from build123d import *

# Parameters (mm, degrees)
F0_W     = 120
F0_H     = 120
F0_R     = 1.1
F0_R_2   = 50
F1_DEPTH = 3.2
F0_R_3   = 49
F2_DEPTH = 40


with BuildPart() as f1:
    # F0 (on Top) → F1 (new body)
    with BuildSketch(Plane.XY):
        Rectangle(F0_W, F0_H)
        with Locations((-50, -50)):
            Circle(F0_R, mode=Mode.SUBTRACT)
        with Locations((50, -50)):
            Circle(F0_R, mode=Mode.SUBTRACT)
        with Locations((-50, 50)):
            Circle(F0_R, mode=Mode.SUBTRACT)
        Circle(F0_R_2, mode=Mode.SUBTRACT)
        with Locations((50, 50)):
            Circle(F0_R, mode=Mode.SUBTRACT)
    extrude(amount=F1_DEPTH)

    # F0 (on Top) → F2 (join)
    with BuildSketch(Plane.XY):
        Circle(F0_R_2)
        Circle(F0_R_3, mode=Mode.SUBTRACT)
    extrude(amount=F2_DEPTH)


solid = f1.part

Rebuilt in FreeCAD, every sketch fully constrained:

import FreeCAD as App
import Part
import Sketcher

V = App.Vector


def add_polygon(sketch, points):
    """Adds a closed chain of lines whose ends are joined by coincident constraints."""
    first, n = sketch.GeometryCount, len(points)
    for a, b in zip(points, points[1:] + points[:1]):
        sketch.addGeometry(Part.LineSegment(App.Vector(*a, 0), App.Vector(*b, 0)), False)
    for i in range(n):
        sketch.addConstraint(Sketcher.Constraint("Coincident", first + i, 2, first + (i + 1) % n, 1))

doc = App.newDocument("Part")
body = doc.addObject("PartDesign::Body", "Body")

# Sketch on XY plane
sketch1 = body.newObject("Sketcher::SketchObject", "Sketch")
sketch1.AttachmentSupport = (doc.getObject("XY_Plane"), [""])
sketch1.MapMode = "FlatFace"
add_polygon(sketch1, [(-60, 60), (-60, -60), (60, -60), (60, 60)])  # lines 0-3
sketch1.addGeometry(Part.Circle(V(-50, -50, 0), V(0, 0, 1), 1.1), False)  # 4
sketch1.addGeometry(Part.Circle(V(50, -50, 0), V(0, 0, 1), 1.1), False)  # 5
sketch1.addGeometry(Part.Circle(V(-50, 50, 0), V(0, 0, 1), 1.1), False)  # 6
sketch1.addGeometry(Part.Circle(V(0, 0, 0), V(0, 0, 1), 50), False)  # 7
sketch1.addGeometry(Part.Circle(V(50, 50, 0), V(0, 0, 1), 1.1), False)  # 8
sketch1.addConstraint(Sketcher.Constraint("Vertical", 0))
sketch1.addConstraint(Sketcher.Constraint("Horizontal", 1))
sketch1.addConstraint(Sketcher.Constraint("Vertical", 2))
sketch1.addConstraint(Sketcher.Constraint("Horizontal", 3))
sketch1.addConstraint(Sketcher.Constraint("Coincident", 7, 3, -1, 1))
sketch1.addConstraint(Sketcher.Constraint("Equal", 4, 5))
sketch1.addConstraint(Sketcher.Constraint("Equal", 5, 6))
sketch1.addConstraint(Sketcher.Constraint("Equal", 6, 8))
sketch1.addConstraint(Sketcher.Constraint("Symmetric", 5, 3, 6, 3, -1, 1))
sketch1.addConstraint(Sketcher.Constraint("Symmetric", 4, 3, 8, 3, -1, 1))
sketch1.addConstraint(Sketcher.Constraint("Symmetric", 0, 2, 2, 2, -1, 1))
sketch1.addConstraint(Sketcher.Constraint("Symmetric", 4, 3, 5, 3, -2))
sketch1.addConstraint(Sketcher.Constraint("Equal", 3, 0))
sketch1.addConstraint(Sketcher.Constraint("Diameter", 7, 100.0))
sketch1.addConstraint(Sketcher.Constraint("Diameter", 4, 2.2))
sketch1.addConstraint(Sketcher.Constraint("DistanceX", 1, 1, 1, 2, 120.0))
sketch1.addConstraint(Sketcher.Constraint("DistanceX", 4, 3, -1, 1, 50.0))
sketch1.addConstraint(Sketcher.Constraint("DistanceY", 4, 3, -1, 1, 50.0))
pad1 = body.newObject("PartDesign::Pad", "Pad")
pad1.Profile = sketch1
pad1.Length = 3.2

# Sketch on XY plane
sketch2 = body.newObject("Sketcher::SketchObject", "Sketch001")
sketch2.AttachmentSupport = (doc.getObject("XY_Plane"), [""])
sketch2.MapMode = "FlatFace"
sketch2.addGeometry(Part.Circle(V(0, 0, 0), V(0, 0, 1), 50), False)
sketch2.addGeometry(Part.Circle(V(0, 0, 0), V(0, 0, 1), 49), False)
sketch2.addConstraint(Sketcher.Constraint("Coincident", 0, 3, -1, 1))
sketch2.addConstraint(Sketcher.Constraint("Coincident", 1, 3, -1, 1))
sketch2.addConstraint(Sketcher.Constraint("Diameter", 0, 100.0))
sketch2.addConstraint(Sketcher.Constraint("Diameter", 1, 98.0))
pad2 = body.newObject("PartDesign::Pad", "Pad001")
pad2.Profile = sketch2
pad2.Length = 40

doc.recompute()
